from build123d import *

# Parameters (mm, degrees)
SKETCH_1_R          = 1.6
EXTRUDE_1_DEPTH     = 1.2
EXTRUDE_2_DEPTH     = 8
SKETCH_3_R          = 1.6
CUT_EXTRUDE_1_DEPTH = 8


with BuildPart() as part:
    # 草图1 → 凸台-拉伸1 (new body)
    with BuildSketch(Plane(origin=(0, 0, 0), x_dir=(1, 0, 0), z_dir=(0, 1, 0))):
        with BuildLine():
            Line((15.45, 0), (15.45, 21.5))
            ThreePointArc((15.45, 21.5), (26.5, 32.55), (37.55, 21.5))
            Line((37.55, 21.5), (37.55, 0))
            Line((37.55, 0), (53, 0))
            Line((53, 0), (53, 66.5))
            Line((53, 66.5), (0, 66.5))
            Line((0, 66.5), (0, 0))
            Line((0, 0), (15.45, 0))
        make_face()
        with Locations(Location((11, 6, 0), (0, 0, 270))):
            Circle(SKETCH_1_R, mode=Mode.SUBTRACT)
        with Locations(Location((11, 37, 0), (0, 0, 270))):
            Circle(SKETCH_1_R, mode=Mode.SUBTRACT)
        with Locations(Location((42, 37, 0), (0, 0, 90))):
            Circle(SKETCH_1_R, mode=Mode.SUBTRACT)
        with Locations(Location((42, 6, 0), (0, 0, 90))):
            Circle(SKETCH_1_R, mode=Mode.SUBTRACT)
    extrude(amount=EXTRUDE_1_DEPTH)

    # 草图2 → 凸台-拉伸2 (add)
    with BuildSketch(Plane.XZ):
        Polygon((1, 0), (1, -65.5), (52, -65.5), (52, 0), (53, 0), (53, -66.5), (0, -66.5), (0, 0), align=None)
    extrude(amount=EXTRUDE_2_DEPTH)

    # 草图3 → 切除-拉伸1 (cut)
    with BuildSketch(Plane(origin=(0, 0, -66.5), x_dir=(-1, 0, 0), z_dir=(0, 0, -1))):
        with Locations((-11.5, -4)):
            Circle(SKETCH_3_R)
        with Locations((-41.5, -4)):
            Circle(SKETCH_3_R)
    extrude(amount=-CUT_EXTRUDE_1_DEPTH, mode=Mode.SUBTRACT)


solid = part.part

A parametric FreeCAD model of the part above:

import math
import FreeCAD as App
import Part
import Sketcher

V = App.Vector


def add_polygon(sketch, points):
    """Adds a closed chain of lines whose ends are joined by coincident constraints."""
    first, n = sketch.GeometryCount, len(points)
    for a, b in zip(points, points[1:] + points[:1]):
        sketch.addGeometry(Part.LineSegment(App.Vector(*a, 0), App.Vector(*b, 0)), False)
    for i in range(n):
        sketch.addConstraint(Sketcher.Constraint("Coincident", first + i, 2, first + (i + 1) % n, 1))

doc = App.newDocument("Part")
body = doc.addObject("PartDesign::Body", "Body")

sketch1 = body.newObject("Sketcher::SketchObject", "Sketch")
sketch1.AttachmentSupport = (doc.getObject("XZ_Plane"), [""])
sketch1.MapMode = "FlatFace"
sketch1.addGeometry(Part.LineSegment(V(15.45, 0, 0), V(15.45, -21.5, 0)), False)
sketch1.addGeometry(Part.ArcOfCircle(Part.Circle(V(26.5, -21.5, 0), V(0, 0, 1), 11.05), math.radians(180), math.radians(360)), False)
sketch1.addGeometry(Part.LineSegment(V(37.55, -21.5, 0), V(37.55, 0, 0)), False)
sketch1.addGeometry(Part.LineSegment(V(37.55, 0, 0), V(53, 0, 0)), False)
sketch1.addGeometry(Part.LineSegment(V(53, 0, 0), V(53, -66.5, 0)), False)
sketch1.addGeometry(Part.LineSegment(V(53, -66.5, 0), V(0, -66.5, 0)), False)
sketch1.addGeometry(Part.LineSegment(V(0, -66.5, 0), V(0, 0, 0)), False)
sketch1.addGeometry(Part.LineSegment(V(0, 0, 0), V(15.45, 0, 0)), False)
sketch1.addGeometry(Part.Circle(V(11, -6, 0), V(0, 0, 1), 1.6), False)
sketch1.addGeometry(Part.Circle(V(42, -6, 0), V(0, 0, 1), 1.6), False)
sketch1.addGeometry(Part.Circle(V(11, -37, 0), V(0, 0, 1), 1.6), False)
sketch1.addGeometry(Part.Circle(V(42, -37, 0), V(0, 0, 1), 1.6), False)
sketch1.addConstraint(Sketcher.Constraint("Tangent", 0, 2, 1, 1))
sketch1.addConstraint(Sketcher.Constraint("Tangent", 1, 2, 2, 1))
sketch1.addConstraint(Sketcher.Constraint("Coincident", 2, 2, 3, 1))
sketch1.addConstraint(Sketcher.Constraint("Coincident", 3, 2, 4, 1))
sketch1.addConstraint(Sketcher.Constraint("Coincident", 4, 2, 5, 1))
sketch1.addConstraint(Sketcher.Constraint("Coincident", 5, 2, 6, 1))
sketch1.addConstraint(Sketcher.Constraint("Coincident", 6, 2, 7, 1))
sketch1.addConstraint(Sketcher.Constraint("Coincident", 7, 2, 0, 1))
sketch1.addConstraint(Sketcher.Constraint("Vertical", 0))
sketch1.addConstraint(Sketcher.Constraint("Vertical", 2))
sketch1.addConstraint(Sketcher.Constraint("Horizontal", 3))
sketch1.addConstraint(Sketcher.Constraint("Vertical", 4))
sketch1.addConstraint(Sketcher.Constraint("Horizontal", 5))
sketch1.addConstraint(Sketcher.Constraint("Vertical", 6))
sketch1.addConstraint(Sketcher.Constraint("Horizontal", 7))
sketch1.addConstraint(Sketcher.Constraint("Coincident", 6, 2, -1, 1))
sketch1.addConstraint(Sketcher.Constraint("Equal", 8, 9))
sketch1.addConstraint(Sketcher.Constraint("Equal", 9, 10))
sketch1.addConstraint(Sketcher.Constraint("Equal", 10, 11))
sketch1.addConstraint(Sketcher.Constraint("PointOnObject", 2, 2, -1))
sketch1.addConstraint(Sketcher.Constraint("Horizontal", 8, 3, 9, 3))
sketch1.addConstraint(Sketcher.Constraint("Horizontal", 10, 3, 11, 3))
sketch1.addConstraint(Sketcher.Constraint("Vertical", 8, 3, 10, 3))
sketch1.addConstraint(Sketcher.Constraint("Vertical", 9, 3, 11, 3))
sketch1.addConstraint(Sketcher.Constraint("Equal", 3, 7))
sketch1.addConstraint(Sketcher.Constraint("Diameter", 8, 3.2))
sketch1.addConstraint(Sketcher.Constraint("DistanceX", 5, 2, 5, 1, 53.0))
sketch1.addConstraint(Sketcher.Constraint("Radius", 1, 11.05))
sketch1.addConstraint(Sketcher.Constraint("DistanceY", 0, 2, 0, 1, 21.5))
sketch1.addConstraint(Sketcher.Constraint("DistanceY", 4, 2, 4, 1, 66.5))
sketch1.addConstraint(Sketcher.Constraint("DistanceX", -1, 1, 8, 3, 11.0))
sketch1.addConstraint(Sketcher.Constraint("DistanceY", 8, 3, -1, 1, 6.0))
sketch1.addConstraint(Sketcher.Constraint("DistanceX", -1, 1, 9, 3, 42.0))
sketch1.addConstraint(Sketcher.Constraint("DistanceY", 10, 3, -1, 1, 37.0))
pad1 = body.newObject("PartDesign::Pad", "Pad")
pad1.Profile = sketch1
pad1.Length = 1.2
pad1.Reversed = True

sketch2 = body.newObject("Sketcher::SketchObject", "Sketch001")
sketch2.AttachmentSupport = (doc.getObject("XZ_Plane"), [""])
sketch2.MapMode = "FlatFace"
add_polygon(sketch2, [(1, -65.5), (1, 0), (0, 0), (0, -66.5), (53, -66.5), (53, 0), (52, 0), (52, -65.5)])
sketch2.addConstraint(Sketcher.Constraint("Vertical", 0))
sketch2.addConstraint(Sketcher.Constraint("Horizontal", 1))
sketch2.addConstraint(Sketcher.Constraint("Vertical", 2))
sketch2.addConstraint(Sketcher.Constraint("Horizontal", 3))
sketch2.addConstraint(Sketcher.Constraint("Vertical", 4))
sketch2.addConstraint(Sketcher.Constraint("Horizontal", 5))
sketch2.addConstraint(Sketcher.Constraint("Vertical", 6))
sketch2.addConstraint(Sketcher.Constraint("Horizontal", 7))
sketch2.addConstraint(Sketcher.Constraint("Coincident", 1, 2, -1, 1))
sketch2.addConstraint(Sketcher.Constraint("PointOnObject", 4, 2, -1))
sketch2.addConstraint(Sketcher.Constraint("Equal", 1, 5))
sketch2.addConstraint(Sketcher.Constraint("DistanceX", 1, 2, 1, 1, 1.0))
sketch2.addConstraint(Sketcher.Constraint("DistanceX", 3, 1, 3, 2, 53.0))
sketch2.addConstraint(Sketcher.Constraint("DistanceY", 0, 1, 0, 2, 65.5))
sketch2.addConstraint(Sketcher.Constraint("DistanceY", 2, 2, 2, 1, 66.5))
pad2 = body.newObject("PartDesign::Pad", "Pad001")
pad2.Profile = sketch2
pad2.Length = 8

sketch3 = body.newObject("Sketcher::SketchObject", "Sketch002")
sketch3.AttachmentSupport = (doc.getObject("XY_Plane"), [""])
sketch3.MapMode = "FlatFace"
sketch3.AttachmentOffset = App.Placement(V(0, 0, -66.5), App.Rotation())
sketch3.addGeometry(Part.Circle(V(11.5, -4, 0), V(0, 0, 1), 1.6), False)
sketch3.addGeometry(Part.Circle(V(41.5, -4, 0), V(0, 0, 1), 1.6), False)
sketch3.addConstraint(Sketcher.Constraint("Equal", 0, 1))
sketch3.addConstraint(Sketcher.Constraint("Horizontal", 0, 3, 1, 3))
sketch3.addConstraint(Sketcher.Constraint("Diameter", 0, 3.2))
sketch3.addConstraint(Sketcher.Constraint("DistanceY", 0, 3, -1, 1, 4.0))
sketch3.addConstraint(Sketcher.Constraint("DistanceX", 0, 3, 1, 3, 30.0))
sketch3.addConstraint(Sketcher.Constraint("DistanceX", -1, 1, 0, 3, 11.5))
pocket1 = body.newObject("PartDesign::Pocket", "Pocket")
pocket1.Profile = sketch3
pocket1.Length = 8
pocket1.Reversed = True

doc.recompute()
